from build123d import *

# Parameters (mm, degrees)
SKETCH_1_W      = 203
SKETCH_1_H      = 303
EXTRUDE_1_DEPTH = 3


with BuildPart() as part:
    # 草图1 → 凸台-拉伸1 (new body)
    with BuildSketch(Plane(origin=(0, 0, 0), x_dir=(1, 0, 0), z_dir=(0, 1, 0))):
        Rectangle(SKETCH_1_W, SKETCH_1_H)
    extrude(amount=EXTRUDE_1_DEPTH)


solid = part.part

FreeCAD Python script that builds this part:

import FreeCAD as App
import Part
import Sketcher
from FreeCAD import Vector

doc = App.newDocument("Part")
body = doc.addObject("PartDesign::Body", "Body")

# Sketch on XZ plane
sketch1 = body.newObject("Sketcher::SketchObject", "Sketch")
sketch1.AttachmentSupport = (doc.getObject("XZ_Plane"), [""])
sketch1.MapMode = "FlatFace"
sketch1.addGeometry([
    Part.LineSegment(Vector(-102, -152, 0), Vector(-102, 152, 0)),
    Part.LineSegment(Vector(-102, 152, 0), Vector(102, 152, 0)),
    Part.LineSegment(Vector(102, 152, 0), Vector(102, -152, 0)),
    Part.LineSegment(Vector(102, -152, 0), Vector(-102, -152, 0)),
], False)
sketch1.addConstraint([
    Sketcher.Constraint("Coincident", 0, 2, 1, 1),
    Sketcher.Constraint("Coincident", 1, 2, 2, 1),
    Sketcher.Constraint("Coincident", 2, 2, 3, 1),
    Sketcher.Constraint("Coincident", 3, 2, 0, 1),
    Sketcher.Constraint("Vertical", 0),
    Sketcher.Constraint("Horizontal", 1),
    Sketcher.Constraint("Vertical", 2),
    Sketcher.Constraint("Horizontal", 3),
    Sketcher.Constraint("Symmetric", 0, 2, 2, 2, -1, 1),
    Sketcher.Constraint("DistanceX", 1, 1, 1, 2, 203.0),
    Sketcher.Constraint("DistanceY", 0, 1, 0, 2, 303.0),
])
pad1 = body.newObject("PartDesign::Pad", "Pad")
pad1.Profile = sketch1
pad1.Length = 3
pad1.Reversed = True

doc.recompute()
